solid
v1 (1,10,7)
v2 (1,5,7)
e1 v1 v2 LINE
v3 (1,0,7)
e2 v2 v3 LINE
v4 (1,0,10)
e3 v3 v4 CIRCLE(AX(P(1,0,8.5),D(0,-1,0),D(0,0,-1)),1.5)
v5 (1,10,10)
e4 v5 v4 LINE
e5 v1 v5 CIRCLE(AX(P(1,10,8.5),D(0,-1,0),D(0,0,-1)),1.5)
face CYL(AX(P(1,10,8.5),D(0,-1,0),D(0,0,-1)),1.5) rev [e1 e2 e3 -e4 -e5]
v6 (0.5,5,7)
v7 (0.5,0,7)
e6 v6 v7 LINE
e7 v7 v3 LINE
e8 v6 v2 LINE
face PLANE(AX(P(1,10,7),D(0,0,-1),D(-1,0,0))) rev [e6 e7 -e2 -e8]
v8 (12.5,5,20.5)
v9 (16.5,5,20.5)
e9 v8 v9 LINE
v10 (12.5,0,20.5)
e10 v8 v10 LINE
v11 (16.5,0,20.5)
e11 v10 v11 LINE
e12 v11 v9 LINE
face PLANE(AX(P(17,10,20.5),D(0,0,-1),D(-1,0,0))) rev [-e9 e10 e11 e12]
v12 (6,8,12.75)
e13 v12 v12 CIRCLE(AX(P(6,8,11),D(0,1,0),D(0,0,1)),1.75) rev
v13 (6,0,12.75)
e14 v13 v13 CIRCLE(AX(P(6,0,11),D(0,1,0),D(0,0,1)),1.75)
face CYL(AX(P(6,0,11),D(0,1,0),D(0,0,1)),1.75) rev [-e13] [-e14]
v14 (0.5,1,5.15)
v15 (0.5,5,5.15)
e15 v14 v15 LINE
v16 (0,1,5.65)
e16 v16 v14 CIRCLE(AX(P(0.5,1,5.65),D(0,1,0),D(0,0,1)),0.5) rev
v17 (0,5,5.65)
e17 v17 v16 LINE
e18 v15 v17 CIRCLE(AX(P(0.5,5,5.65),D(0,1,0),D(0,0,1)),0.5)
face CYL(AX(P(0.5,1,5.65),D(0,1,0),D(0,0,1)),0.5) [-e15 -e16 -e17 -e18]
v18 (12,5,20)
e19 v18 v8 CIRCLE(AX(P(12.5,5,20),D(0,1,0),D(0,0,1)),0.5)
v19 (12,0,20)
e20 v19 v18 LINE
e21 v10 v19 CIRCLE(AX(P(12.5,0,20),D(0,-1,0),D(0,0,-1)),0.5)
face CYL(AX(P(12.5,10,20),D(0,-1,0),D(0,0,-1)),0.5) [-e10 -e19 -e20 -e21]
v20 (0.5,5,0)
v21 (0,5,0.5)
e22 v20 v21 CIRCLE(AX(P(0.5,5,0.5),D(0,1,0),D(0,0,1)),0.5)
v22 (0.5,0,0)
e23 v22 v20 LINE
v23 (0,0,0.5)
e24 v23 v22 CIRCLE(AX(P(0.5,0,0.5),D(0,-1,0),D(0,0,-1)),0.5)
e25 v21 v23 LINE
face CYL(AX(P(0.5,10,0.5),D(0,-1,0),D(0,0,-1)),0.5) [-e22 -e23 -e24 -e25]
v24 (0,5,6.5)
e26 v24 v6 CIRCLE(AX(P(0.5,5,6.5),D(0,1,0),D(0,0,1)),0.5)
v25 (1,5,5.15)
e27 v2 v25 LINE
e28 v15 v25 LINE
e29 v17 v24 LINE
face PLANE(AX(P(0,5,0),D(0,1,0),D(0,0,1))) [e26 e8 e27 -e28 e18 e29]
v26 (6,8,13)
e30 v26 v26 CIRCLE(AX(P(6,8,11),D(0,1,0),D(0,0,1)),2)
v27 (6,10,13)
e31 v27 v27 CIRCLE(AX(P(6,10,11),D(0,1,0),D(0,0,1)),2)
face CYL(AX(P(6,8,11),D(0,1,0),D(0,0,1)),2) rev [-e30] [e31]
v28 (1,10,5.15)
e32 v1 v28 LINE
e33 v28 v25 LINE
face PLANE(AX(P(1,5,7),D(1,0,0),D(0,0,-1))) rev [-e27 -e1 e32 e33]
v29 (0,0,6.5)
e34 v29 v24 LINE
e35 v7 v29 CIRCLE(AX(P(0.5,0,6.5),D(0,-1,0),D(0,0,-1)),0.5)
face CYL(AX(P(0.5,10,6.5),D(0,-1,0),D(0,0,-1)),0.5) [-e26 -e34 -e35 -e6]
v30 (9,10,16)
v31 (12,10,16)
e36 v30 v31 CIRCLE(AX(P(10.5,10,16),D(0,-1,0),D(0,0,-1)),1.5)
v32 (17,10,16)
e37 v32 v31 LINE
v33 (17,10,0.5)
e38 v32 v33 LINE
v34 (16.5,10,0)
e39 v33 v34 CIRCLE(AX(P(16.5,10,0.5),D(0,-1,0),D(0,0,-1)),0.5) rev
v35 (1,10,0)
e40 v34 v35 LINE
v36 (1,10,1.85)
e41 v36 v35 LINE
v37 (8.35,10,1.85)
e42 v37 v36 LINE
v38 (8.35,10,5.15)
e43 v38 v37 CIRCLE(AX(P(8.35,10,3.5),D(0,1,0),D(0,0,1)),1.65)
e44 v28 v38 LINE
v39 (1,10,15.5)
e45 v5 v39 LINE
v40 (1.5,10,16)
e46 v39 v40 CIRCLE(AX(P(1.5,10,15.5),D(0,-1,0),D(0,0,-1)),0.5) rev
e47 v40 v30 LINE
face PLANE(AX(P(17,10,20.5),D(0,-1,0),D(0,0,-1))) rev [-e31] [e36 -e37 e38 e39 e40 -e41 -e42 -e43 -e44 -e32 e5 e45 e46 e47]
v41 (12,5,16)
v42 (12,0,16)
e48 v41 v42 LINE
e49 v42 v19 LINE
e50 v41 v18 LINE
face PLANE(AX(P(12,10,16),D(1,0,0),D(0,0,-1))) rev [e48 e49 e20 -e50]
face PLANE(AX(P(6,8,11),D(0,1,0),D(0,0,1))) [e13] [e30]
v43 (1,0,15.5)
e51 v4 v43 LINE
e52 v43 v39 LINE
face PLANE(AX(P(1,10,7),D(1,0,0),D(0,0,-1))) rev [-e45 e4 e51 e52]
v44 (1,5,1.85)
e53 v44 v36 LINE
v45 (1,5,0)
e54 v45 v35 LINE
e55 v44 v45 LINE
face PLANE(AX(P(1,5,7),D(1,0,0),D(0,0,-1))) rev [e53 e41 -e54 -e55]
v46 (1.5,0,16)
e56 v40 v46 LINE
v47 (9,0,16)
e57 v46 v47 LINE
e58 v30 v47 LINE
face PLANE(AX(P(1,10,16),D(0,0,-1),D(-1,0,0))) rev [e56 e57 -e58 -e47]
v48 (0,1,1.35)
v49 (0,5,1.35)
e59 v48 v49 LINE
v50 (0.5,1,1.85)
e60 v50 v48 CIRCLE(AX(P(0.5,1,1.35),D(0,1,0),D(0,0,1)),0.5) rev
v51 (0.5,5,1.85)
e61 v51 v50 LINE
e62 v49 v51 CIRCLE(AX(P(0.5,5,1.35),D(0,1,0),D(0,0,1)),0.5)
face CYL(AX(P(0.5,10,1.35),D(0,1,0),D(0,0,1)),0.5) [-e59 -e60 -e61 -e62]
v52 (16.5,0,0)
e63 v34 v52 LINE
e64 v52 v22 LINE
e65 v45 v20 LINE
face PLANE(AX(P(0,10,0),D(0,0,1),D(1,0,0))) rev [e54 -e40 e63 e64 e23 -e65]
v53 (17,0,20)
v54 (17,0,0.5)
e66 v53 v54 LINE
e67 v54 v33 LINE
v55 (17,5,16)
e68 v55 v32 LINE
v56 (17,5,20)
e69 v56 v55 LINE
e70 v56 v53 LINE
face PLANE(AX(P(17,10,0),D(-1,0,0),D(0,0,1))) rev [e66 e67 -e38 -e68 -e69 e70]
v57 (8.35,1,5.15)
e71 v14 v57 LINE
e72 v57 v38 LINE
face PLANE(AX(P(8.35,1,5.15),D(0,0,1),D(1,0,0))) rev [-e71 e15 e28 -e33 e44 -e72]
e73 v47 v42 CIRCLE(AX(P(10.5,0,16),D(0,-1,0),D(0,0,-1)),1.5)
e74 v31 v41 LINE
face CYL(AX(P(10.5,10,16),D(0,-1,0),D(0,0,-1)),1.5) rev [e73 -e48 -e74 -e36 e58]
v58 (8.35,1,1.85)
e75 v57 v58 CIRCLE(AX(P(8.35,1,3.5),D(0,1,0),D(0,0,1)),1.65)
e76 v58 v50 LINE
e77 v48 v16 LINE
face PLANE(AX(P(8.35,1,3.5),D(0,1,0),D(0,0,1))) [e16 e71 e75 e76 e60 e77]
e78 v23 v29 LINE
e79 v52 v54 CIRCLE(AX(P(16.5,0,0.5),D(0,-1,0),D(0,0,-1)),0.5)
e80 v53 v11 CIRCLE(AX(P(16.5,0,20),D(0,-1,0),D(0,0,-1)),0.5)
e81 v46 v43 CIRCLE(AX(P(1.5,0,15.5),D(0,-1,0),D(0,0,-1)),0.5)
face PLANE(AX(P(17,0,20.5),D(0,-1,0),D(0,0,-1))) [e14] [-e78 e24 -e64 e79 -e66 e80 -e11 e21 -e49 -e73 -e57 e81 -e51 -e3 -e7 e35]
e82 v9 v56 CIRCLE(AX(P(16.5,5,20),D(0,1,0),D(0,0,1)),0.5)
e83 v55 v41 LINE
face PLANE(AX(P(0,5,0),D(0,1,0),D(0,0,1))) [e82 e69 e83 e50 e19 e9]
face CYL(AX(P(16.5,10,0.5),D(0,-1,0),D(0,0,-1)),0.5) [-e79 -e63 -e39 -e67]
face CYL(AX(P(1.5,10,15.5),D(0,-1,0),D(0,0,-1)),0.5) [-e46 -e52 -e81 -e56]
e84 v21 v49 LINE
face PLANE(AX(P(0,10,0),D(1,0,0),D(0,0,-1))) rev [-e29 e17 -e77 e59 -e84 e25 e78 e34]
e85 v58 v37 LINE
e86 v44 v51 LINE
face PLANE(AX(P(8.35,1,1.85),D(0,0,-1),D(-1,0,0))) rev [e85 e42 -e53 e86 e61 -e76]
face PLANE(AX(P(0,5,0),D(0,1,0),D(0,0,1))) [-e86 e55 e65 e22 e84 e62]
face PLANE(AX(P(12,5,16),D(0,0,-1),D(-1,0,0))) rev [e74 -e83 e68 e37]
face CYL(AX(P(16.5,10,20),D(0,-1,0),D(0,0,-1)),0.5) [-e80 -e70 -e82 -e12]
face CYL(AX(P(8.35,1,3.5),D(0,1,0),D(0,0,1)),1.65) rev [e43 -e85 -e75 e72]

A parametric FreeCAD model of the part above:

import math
import FreeCAD as App
import Part
import Sketcher


def edges_at(feature, points):
    """Names of the edges that pass closest to the given points."""
    edges = feature.Shape.Edges
    near = lambda p: min(range(len(edges)), key=lambda i: edges[i].distToShape(Part.Vertex(*p))[0])
    return sorted({f"Edge{near(p) + 1}" for p in points})

doc = App.newDocument("Part")
body = doc.addObject("PartDesign::Body", "Body")

sketch1 = body.newObject("Sketcher::SketchObject", "Sketch")
sketch1.AttachmentSupport = (doc.getObject("XZ_Plane"), [""])
sketch1.MapMode = "FlatFace"
sketch1.addGeometry([
    Part.LineSegment(App.Vector(17, 0, 0), App.Vector(0, 0, 0)),
    Part.LineSegment(App.Vector(0, 0, 0), App.Vector(0, 7, 0)),
    Part.LineSegment(App.Vector(0, 7, 0), App.Vector(1, 7, 0)),
    Part.LineSegment(App.Vector(1, 7, 0), App.Vector(1, 16, 0)),
    Part.LineSegment(App.Vector(1, 16, 0), App.Vector(12, 16, 0)),
    Part.LineSegment(App.Vector(12, 16, 0), App.Vector(12, 20.5, 0)),
    Part.LineSegment(App.Vector(12, 20.5, 0), App.Vector(17, 20.5, 0)),
    Part.LineSegment(App.Vector(17, 20.5, 0), App.Vector(17, 0, 0)),
], False)
sketch1.addConstraint([
    Sketcher.Constraint("Coincident", 0, 2, 1, 1),
    Sketcher.Constraint("Coincident", 1, 2, 2, 1),
    Sketcher.Constraint("Coincident", 2, 2, 3, 1),
    Sketcher.Constraint("Coincident", 3, 2, 4, 1),
    Sketcher.Constraint("Coincident", 4, 2, 5, 1),
    Sketcher.Constraint("Coincident", 5, 2, 6, 1),
    Sketcher.Constraint("Coincident", 6, 2, 7, 1),
    Sketcher.Constraint("Coincident", 7, 2, 0, 1),
    Sketcher.Constraint("Horizontal", 0),
    Sketcher.Constraint("Vertical", 1),
    Sketcher.Constraint("Horizontal", 2),
    Sketcher.Constraint("Vertical", 3),
    Sketcher.Constraint("Horizontal", 4),
    Sketcher.Constraint("Vertical", 5),
    Sketcher.Constraint("Horizontal", 6),
    Sketcher.Constraint("Vertical", 7),
    Sketcher.Constraint("Coincident", 0, 2, -1, 1),
    Sketcher.Constraint("DistanceX", 0, 2, 0, 1, 17.0),
    Sketcher.Constraint("DistanceX", 2, 1, 2, 2, 1.0),
    Sketcher.Constraint("DistanceX", 4, 1, 4, 2, 11.0),
    Sketcher.Constraint("DistanceY", 1, 1, 1, 2, 7.0),
    Sketcher.Constraint("DistanceY", 3, 1, 3, 2, 9.0),
    Sketcher.Constraint("DistanceY", 5, 1, 5, 2, 4.5),
])
pad1 = body.newObject("PartDesign::Pad", "Pad")
pad1.Profile = sketch1
pad1.Length = 10
pad1.Reversed = True

sketch2 = body.newObject("Sketcher::SketchObject", "Sketch001")
sketch2.AttachmentSupport = (doc.getObject("XZ_Plane"), [""])
sketch2.MapMode = "FlatFace"
sketch2.AttachmentOffset = App.Placement(App.Vector(0, 0, -10), App.Rotation())
sketch2.addGeometry(Part.Circle(App.Vector(6, 11, 0), App.Vector(0, 0, 1), 1.8), False)
sketch2.addConstraint([
    Sketcher.Constraint("Diameter", 0, 3.5),
    Sketcher.Constraint("DistanceX", -1, 1, 0, 3, 6.0),
    Sketcher.Constraint("DistanceY", -1, 1, 0, 3, 11.0),
])
pocket1 = body.newObject("PartDesign::Pocket", "Pocket")
pocket1.Profile = sketch2
pocket1.Length = 10
pocket1.Reversed = True

sketch3 = body.newObject("Sketcher::SketchObject", "Sketch002")
sketch3.AttachmentSupport = (doc.getObject("XZ_Plane"), [""])
sketch3.MapMode = "FlatFace"
sketch3.AttachmentOffset = App.Placement(App.Vector(0, 0, -10), App.Rotation())
sketch3.addGeometry(Part.Circle(App.Vector(6, 11, 0), App.Vector(0, 0, 1), 2), False)
sketch3.addConstraint([
    Sketcher.Constraint("Diameter", 0, 4.0),
    Sketcher.Constraint("DistanceX", -1, 1, 0, 3, 6.0),
    Sketcher.Constraint("DistanceY", -1, 1, 0, 3, 11.0),
])
pocket2 = body.newObject("PartDesign::Pocket", "Pocket001")
pocket2.Profile = sketch3
pocket2.Length = 2
pocket2.Reversed = True

sketch4 = body.newObject("Sketcher::SketchObject", "Sketch003")
sketch4.AttachmentSupport = (doc.getObject("XZ_Plane"), [""])
sketch4.MapMode = "FlatFace"
sketch4.addGeometry([
    Part.LineSegment(App.Vector(1, 10, 0), App.Vector(0, 10, 0)),
    Part.ArcOfCircle(Part.Circle(App.Vector(0, 8.5, 0), App.Vector(0, 0, 1), 1.5), math.radians(90), math.radians(270)),
    Part.LineSegment(App.Vector(0, 7, 0), App.Vector(1, 7, 0)),
    Part.ArcOfCircle(Part.Circle(App.Vector(1, 8.5, 0), App.Vector(0, 0, 1), 1.5), math.radians(-90), math.radians(90)),
    Part.LineSegment(App.Vector(9, 20.5, 0), App.Vector(9, 16, 0)),
    Part.ArcOfCircle(Part.Circle(App.Vector(10.5, 16, 0), App.Vector(0, 0, 1), 1.5), math.radians(180), math.radians(360)),
    Part.LineSegment(App.Vector(12, 16, 0), App.Vector(12, 20.5, 0)),
    Part.ArcOfCircle(Part.Circle(App.Vector(10.5, 20.5, 0), App.Vector(0, 0, 1), 1.5), math.radians(0), math.radians(180)),
], False)
sketch4.addConstraint([
    Sketcher.Constraint("Tangent", 0, 2, 1, 1),
    Sketcher.Constraint("Tangent", 1, 2, 2, 1),
    Sketcher.Constraint("Tangent", 2, 2, 3, 1),
    Sketcher.Constraint("Tangent", 3, 2, 0, 1),
    Sketcher.Constraint("Tangent", 4, 2, 5, 1),
    Sketcher.Constraint("Tangent", 5, 2, 6, 1),
    Sketcher.Constraint("Tangent", 6, 2, 7, 1),
    Sketcher.Constraint("Tangent", 7, 2, 4, 1),
    Sketcher.Constraint("Horizontal", 0),
    Sketcher.Constraint("Horizontal", 2),
    Sketcher.Constraint("Vertical", 4),
    Sketcher.Constraint("Vertical", 6),
    Sketcher.Constraint("Equal", 3, 5),
    Sketcher.Constraint("PointOnObject", 1, 3, -2),
    Sketcher.Constraint("Radius", 1, 1.5),
    Sketcher.Constraint("DistanceX", 0, 2, 0, 1, 1.0),
    Sketcher.Constraint("DistanceY", 4, 2, 4, 1, 4.5),
    Sketcher.Constraint("DistanceY", -1, 1, 5, 3, 16.0),
    Sketcher.Constraint("DistanceY", -1, 1, 0, 2, 10.0),
    Sketcher.Constraint("DistanceX", -1, 1, 4, 2, 9.0),
])
pocket3 = body.newObject("PartDesign::Pocket", "Pocket002")
pocket3.Profile = sketch4
pocket3.Type = "ThroughAll"

sketch5 = body.newObject("Sketcher::SketchObject", "Sketch004")
sketch5.AttachmentSupport = (doc.getObject("XZ_Plane"), [""])
sketch5.MapMode = "FlatFace"
sketch5.AttachmentOffset = App.Placement(App.Vector(0, 0, -10), App.Rotation())
sketch5.addGeometry([
    Part.LineSegment(App.Vector(12, 16, 0), App.Vector(12, 20.5, 0)),
    Part.LineSegment(App.Vector(12, 20.5, 0), App.Vector(17, 20.5, 0)),
    Part.LineSegment(App.Vector(17, 20.5, 0), App.Vector(17, 16, 0)),
    Part.LineSegment(App.Vector(17, 16, 0), App.Vector(12, 16, 0)),
    Part.LineSegment(App.Vector(0, 0, 0), App.Vector(0, 7, 0)),
    Part.LineSegment(App.Vector(0, 7, 0), App.Vector(1, 7, 0)),
    Part.LineSegment(App.Vector(1, 7, 0), App.Vector(1, 0, 0)),
    Part.LineSegment(App.Vector(1, 0, 0), App.Vector(0, 0, 0)),
], False)
sketch5.addConstraint([
    Sketcher.Constraint("Coincident", 0, 2, 1, 1),
    Sketcher.Constraint("Coincident", 1, 2, 2, 1),
    Sketcher.Constraint("Coincident", 2, 2, 3, 1),
    Sketcher.Constraint("Coincident", 3, 2, 0, 1),
    Sketcher.Constraint("Coincident", 4, 2, 5, 1),
    Sketcher.Constraint("Coincident", 5, 2, 6, 1),
    Sketcher.Constraint("Coincident", 6, 2, 7, 1),
    Sketcher.Constraint("Coincident", 7, 2, 4, 1),
    Sketcher.Constraint("Vertical", 0),
    Sketcher.Constraint("Horizontal", 1),
    Sketcher.Constraint("Vertical", 2),
    Sketcher.Constraint("Horizontal", 3),
    Sketcher.Constraint("Vertical", 4),
    Sketcher.Constraint("Horizontal", 5),
    Sketcher.Constraint("Vertical", 6),
    Sketcher.Constraint("Horizontal", 7),
    Sketcher.Constraint("Coincident", 7, 2, -1, 1),
    Sketcher.Constraint("DistanceX", 1, 1, 1, 2, 5.0),
    Sketcher.Constraint("DistanceX", 5, 1, 5, 2, 1.0),
    Sketcher.Constraint("DistanceY", 4, 1, 4, 2, 7.0),
    Sketcher.Constraint("DistanceY", 0, 1, 0, 2, 4.5),
    Sketcher.Constraint("DistanceX", -1, 1, 0, 2, 12.0),
    Sketcher.Constraint("DistanceY", -1, 1, 2, 2, 16.0),
])
pocket4 = body.newObject("PartDesign::Pocket", "Pocket003")
pocket4.Profile = sketch5
pocket4.Length = 5
pocket4.Reversed = True

sketch6 = body.newObject("Sketcher::SketchObject", "Sketch005")
sketch6.AttachmentSupport = (doc.getObject("XZ_Plane"), [""])
sketch6.MapMode = "FlatFace"
sketch6.AttachmentOffset = App.Placement(App.Vector(0, 0, -10), App.Rotation())
sketch6.addGeometry([
    Part.LineSegment(App.Vector(0, 5.2, 0), App.Vector(8.3, 5.2, 0)),
    Part.ArcOfCircle(Part.Circle(App.Vector(8.3, 3.5, 0), App.Vector(0, 0, 1), 1.6), math.radians(-90), math.radians(90)),
    Part.LineSegment(App.Vector(8.3, 1.9, 0), App.Vector(0, 1.9, 0)),
    Part.ArcOfCircle(Part.Circle(App.Vector(0, 3.5, 0), App.Vector(0, 0, 1), 1.6), math.radians(90), math.radians(270)),
], False)
sketch6.addConstraint([
    Sketcher.Constraint("Tangent", 0, 2, 1, 2),
    Sketcher.Constraint("Tangent", 1, 1, 2, 1),
    Sketcher.Constraint("Tangent", 2, 2, 3, 2),
    Sketcher.Constraint("Tangent", 3, 1, 0, 1),
    Sketcher.Constraint("Horizontal", 0),
    Sketcher.Constraint("Horizontal", 2),
    Sketcher.Constraint("PointOnObject", 3, 3, -2),
    Sketcher.Constraint("Radius", 1, 1.65),
    Sketcher.Constraint("DistanceX", 0, 1, 0, 2, 8.35),
    Sketcher.Constraint("DistanceY", -1, 1, 1, 3, 3.5),
])
pocket5 = body.newObject("PartDesign::Pocket", "Pocket004")
pocket5.Profile = sketch6
pocket5.Length = 9
pocket5.Reversed = True
doc.recompute()

fillet = body.newObject("PartDesign::Fillet", "Fillet")
fillet.Base = (pocket5, edges_at(pocket5, [
    (0, 3, 1.85),
    (0, 3, 5.15),
    (1, 5, 16),
    (17, 5, 0),
    (17, 2.5, 20.5),
    (12, 2.5, 20.5),
    (0, 2.5, 7),
    (0, 2.5, 0),
]))
fillet.Radius = 0.5

doc.recompute()
